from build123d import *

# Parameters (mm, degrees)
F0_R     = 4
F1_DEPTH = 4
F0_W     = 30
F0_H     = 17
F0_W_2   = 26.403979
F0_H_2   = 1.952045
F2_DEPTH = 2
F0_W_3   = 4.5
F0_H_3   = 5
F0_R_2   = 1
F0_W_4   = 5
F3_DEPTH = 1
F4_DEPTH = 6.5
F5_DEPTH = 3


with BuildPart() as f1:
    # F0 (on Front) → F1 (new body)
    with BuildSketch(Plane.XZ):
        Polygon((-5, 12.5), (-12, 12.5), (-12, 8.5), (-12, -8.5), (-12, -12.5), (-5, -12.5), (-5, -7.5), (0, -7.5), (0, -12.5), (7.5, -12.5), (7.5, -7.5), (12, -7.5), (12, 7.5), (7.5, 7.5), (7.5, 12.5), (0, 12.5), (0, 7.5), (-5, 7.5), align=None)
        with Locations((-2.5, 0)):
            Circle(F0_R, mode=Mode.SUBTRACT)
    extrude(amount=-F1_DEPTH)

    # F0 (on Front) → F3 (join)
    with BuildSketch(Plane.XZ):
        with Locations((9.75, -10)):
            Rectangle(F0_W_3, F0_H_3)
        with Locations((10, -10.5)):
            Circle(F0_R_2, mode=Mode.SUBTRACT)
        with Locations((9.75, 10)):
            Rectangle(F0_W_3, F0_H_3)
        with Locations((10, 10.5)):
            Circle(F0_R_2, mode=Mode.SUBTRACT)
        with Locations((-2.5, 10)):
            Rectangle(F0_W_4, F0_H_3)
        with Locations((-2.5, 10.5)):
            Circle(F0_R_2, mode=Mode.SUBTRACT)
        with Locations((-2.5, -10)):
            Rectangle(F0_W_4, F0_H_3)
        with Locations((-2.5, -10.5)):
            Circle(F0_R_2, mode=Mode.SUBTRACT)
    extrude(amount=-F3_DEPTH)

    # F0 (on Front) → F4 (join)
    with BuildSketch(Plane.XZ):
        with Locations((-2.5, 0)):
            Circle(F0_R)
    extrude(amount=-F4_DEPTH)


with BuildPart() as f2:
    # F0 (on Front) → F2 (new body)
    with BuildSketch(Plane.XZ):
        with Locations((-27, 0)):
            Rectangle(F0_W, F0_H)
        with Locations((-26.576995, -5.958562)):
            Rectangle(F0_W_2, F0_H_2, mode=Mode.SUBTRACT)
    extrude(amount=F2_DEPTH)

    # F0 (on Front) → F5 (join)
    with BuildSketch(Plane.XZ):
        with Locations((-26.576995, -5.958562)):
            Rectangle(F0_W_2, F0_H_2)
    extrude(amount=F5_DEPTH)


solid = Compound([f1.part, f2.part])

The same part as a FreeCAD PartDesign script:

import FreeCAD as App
import Part
import Sketcher
from FreeCAD import Vector

doc = App.newDocument("Part")
body = doc.addObject("PartDesign::Body", "Body")

# Sketch on XZ plane
sketch1 = body.newObject("Sketcher::SketchObject", "Sketch")
sketch1.AttachmentSupport = (doc.getObject("XZ_Plane"), [""])
sketch1.MapMode = "FlatFace"
sketch1.addGeometry(Part.LineSegment(Vector(-5, 12.5, 0), Vector(-12, 12.5, 0)), False)
sketch1.addGeometry(Part.LineSegment(Vector(-12, 12.5, 0), Vector(-12, -12.5, 0)), False)
sketch1.addGeometry(Part.LineSegment(Vector(-12, -12.5, 0), Vector(-5, -12.5, 0)), False)
sketch1.addGeometry(Part.LineSegment(Vector(-5, -12.5, 0), Vector(-5, -7.5, 0)), False)
sketch1.addGeometry(Part.LineSegment(Vector(-5, -7.5, 0), Vector(0, -7.5, 0)), False)
sketch1.addGeometry(Part.LineSegment(Vector(0, -7.5, 0), Vector(0, -12.5, 0)), False)
sketch1.addGeometry(Part.LineSegment(Vector(0, -12.5, 0), Vector(7.5, -12.5, 0)), False)
sketch1.addGeometry(Part.LineSegment(Vector(7.5, -12.5, 0), Vector(7.5, -7.5, 0)), False)
sketch1.addGeometry(Part.LineSegment(Vector(7.5, -7.5, 0), Vector(12, -7.5, 0)), False)
sketch1.addGeometry(Part.LineSegment(Vector(12, -7.5, 0), Vector(12, 7.5, 0)), False)
sketch1.addGeometry(Part.LineSegment(Vector(12, 7.5, 0), Vector(7.5, 7.5, 0)), False)
sketch1.addGeometry(Part.LineSegment(Vector(7.5, 7.5, 0), Vector(7.5, 12.5, 0)), False)
sketch1.addGeometry(Part.LineSegment(Vector(7.5, 12.5, 0), Vector(0, 12.5, 0)), False)
sketch1.addGeometry(Part.LineSegment(Vector(0, 12.5, 0), Vector(0, 7.5, 0)), False)
sketch1.addGeometry(Part.LineSegment(Vector(0, 7.5, 0), Vector(-5, 7.5, 0)), False)
sketch1.addGeometry(Part.LineSegment(Vector(-5, 7.5, 0), Vector(-5, 12.5, 0)), False)
sketch1.addGeometry(Part.Circle(Vector(-2.5, 0, 0), Vector(0, 0, 1), 4), False)
sketch1.addConstraint(Sketcher.Constraint("Coincident", 0, 2, 1, 1))
sketch1.addConstraint(Sketcher.Constraint("Coincident", 1, 2, 2, 1))
sketch1.addConstraint(Sketcher.Constraint("Coincident", 2, 2, 3, 1))
sketch1.addConstraint(Sketcher.Constraint("Coincident", 3, 2, 4, 1))
sketch1.addConstraint(Sketcher.Constraint("Coincident", 4, 2, 5, 1))
sketch1.addConstraint(Sketcher.Constraint("Coincident", 5, 2, 6, 1))
sketch1.addConstraint(Sketcher.Constraint("Coincident", 6, 2, 7, 1))
sketch1.addConstraint(Sketcher.Constraint("Coincident", 7, 2, 8, 1))
sketch1.addConstraint(Sketcher.Constraint("Coincident", 8, 2, 9, 1))
sketch1.addConstraint(Sketcher.Constraint("Coincident", 9, 2, 10, 1))
sketch1.addConstraint(Sketcher.Constraint("Coincident", 10, 2, 11, 1))
sketch1.addConstraint(Sketcher.Constraint("Coincident", 11, 2, 12, 1))
sketch1.addConstraint(Sketcher.Constraint("Coincident", 12, 2, 13, 1))
sketch1.addConstraint(Sketcher.Constraint("Coincident", 13, 2, 14, 1))
sketch1.addConstraint(Sketcher.Constraint("Coincident", 14, 2, 15, 1))
sketch1.addConstraint(Sketcher.Constraint("Coincident", 15, 2, 0, 1))
sketch1.addConstraint(Sketcher.Constraint("Horizontal", 0))
sketch1.addConstraint(Sketcher.Constraint("Vertical", 1))
sketch1.addConstraint(Sketcher.Constraint("Horizontal", 2))
sketch1.addConstraint(Sketcher.Constraint("Vertical", 3))
sketch1.addConstraint(Sketcher.Constraint("Horizontal", 4))
sketch1.addConstraint(Sketcher.Constraint("Vertical", 5))
sketch1.addConstraint(Sketcher.Constraint("Horizontal", 6))
sketch1.addConstraint(Sketcher.Constraint("Vertical", 7))
sketch1.addConstraint(Sketcher.Constraint("Horizontal", 8))
sketch1.addConstraint(Sketcher.Constraint("Vertical", 9))
sketch1.addConstraint(Sketcher.Constraint("Horizontal", 10))
sketch1.addConstraint(Sketcher.Constraint("Vertical", 11))
sketch1.addConstraint(Sketcher.Constraint("Horizontal", 12))
sketch1.addConstraint(Sketcher.Constraint("Vertical", 13))
sketch1.addConstraint(Sketcher.Constraint("Horizontal", 14))
sketch1.addConstraint(Sketcher.Constraint("Vertical", 15))
sketch1.addConstraint(Sketcher.Constraint("Symmetric", 5, 2, 12, 2, -1, 1))
sketch1.addConstraint(Sketcher.Constraint("Symmetric", 7, 2, 10, 2, -1))
sketch1.addConstraint(Sketcher.Constraint("Symmetric", 4, 2, 13, 2, -1))
sketch1.addConstraint(Sketcher.Constraint("Symmetric", 2, 2, 15, 2, -1))
sketch1.addConstraint(Sketcher.Constraint("PointOnObject", 16, 3, -1))
sketch1.addConstraint(Sketcher.Constraint("Horizontal", 2, 2, 5, 2))
sketch1.addConstraint(Sketcher.Constraint("Horizontal", 4, 2, 7, 2))
sketch1.addConstraint(Sketcher.Constraint("Equal", 14, 3))
sketch1.addConstraint(Sketcher.Constraint("Diameter", 16, 8.0))
sketch1.addConstraint(Sketcher.Constraint("DistanceX", 0, 2, 0, 1, 7.0))
sketch1.addConstraint(Sketcher.Constraint("DistanceX", 4, 1, 4, 2, 5.0))
sketch1.addConstraint(Sketcher.Constraint("DistanceY", 1, 2, 1, 1, 25.0))
sketch1.addConstraint(Sketcher.Constraint("DistanceX", 6, 1, 6, 2, 7.5))
sketch1.addConstraint(Sketcher.Constraint("DistanceX", 8, 1, 8, 2, 4.5))
sketch1.addConstraint(Sketcher.Constraint("DistanceX", 16, 3, 6, 2, 10.0))
pad1 = body.newObject("PartDesign::Pad", "Pad")
pad1.Profile = sketch1
pad1.Length = 4
pad1.Reversed = True

# Sketch on XZ plane
sketch2 = body.newObject("Sketcher::SketchObject", "Sketch001")
sketch2.AttachmentSupport = (doc.getObject("XZ_Plane"), [""])
sketch2.MapMode = "FlatFace"
sketch2.addGeometry(Part.LineSegment(Vector(7.5, -7.5, 0), Vector(7.5, -12.5, 0)), False)
sketch2.addGeometry(Part.LineSegment(Vector(7.5, -12.5, 0), Vector(12, -12.5, 0)), False)
sketch2.addGeometry(Part.LineSegment(Vector(12, -12.5, 0), Vector(12, -7.5, 0)), False)
sketch2.addGeometry(Part.LineSegment(Vector(12, -7.5, 0), Vector(7.5, -7.5, 0)), False)
sketch2.addGeometry(Part.Circle(Vector(10, -10.5, 0), Vector(0, 0, 1), 1), False)
sketch2.addGeometry(Part.LineSegment(Vector(7.5, 12.5, 0), Vector(7.5, 7.5, 0)), False)
sketch2.addGeometry(Part.LineSegment(Vector(7.5, 7.5, 0), Vector(12, 7.5, 0)), False)
sketch2.addGeometry(Part.LineSegment(Vector(12, 7.5, 0), Vector(12, 12.5, 0)), False)
sketch2.addGeometry(Part.LineSegment(Vector(12, 12.5, 0), Vector(7.5, 12.5, 0)), False)
sketch2.addGeometry(Part.Circle(Vector(10, 10.5, 0), Vector(0, 0, 1), 1), False)
sketch2.addGeometry(Part.LineSegment(Vector(-5, 12.5, 0), Vector(-5, 7.5, 0)), False)
sketch2.addGeometry(Part.LineSegment(Vector(-5, 7.5, 0), Vector(0, 7.5, 0)), False)
sketch2.addGeometry(Part.LineSegment(Vector(0, 7.5, 0), Vector(0, 12.5, 0)), False)
sketch2.addGeometry(Part.LineSegment(Vector(0, 12.5, 0), Vector(-5, 12.5, 0)), False)
sketch2.addGeometry(Part.Circle(Vector(-2.5, 10.5, 0), Vector(0, 0, 1), 1), False)
sketch2.addGeometry(Part.LineSegment(Vector(-5, -7.5, 0), Vector(-5, -12.5, 0)), False)
sketch2.addGeometry(Part.LineSegment(Vector(-5, -12.5, 0), Vector(0, -12.5, 0)), False)
sketch2.addGeometry(Part.LineSegment(Vector(0, -12.5, 0), Vector(0, -7.5, 0)), False)
sketch2.addGeometry(Part.LineSegment(Vector(0, -7.5, 0), Vector(-5, -7.5, 0)), False)
sketch2.addGeometry(Part.Circle(Vector(-2.5, -10.5, 0), Vector(0, 0, 1), 1), False)
sketch2.addConstraint(Sketcher.Constraint("Coincident", 0, 2, 1, 1))
sketch2.addConstraint(Sketcher.Constraint("Coincident", 1, 2, 2, 1))
sketch2.addConstraint(Sketcher.Constraint("Coincident", 2, 2, 3, 1))
sketch2.addConstraint(Sketcher.Constraint("Coincident", 3, 2, 0, 1))
sketch2.addConstraint(Sketcher.Constraint("Coincident", 5, 2, 6, 1))
sketch2.addConstraint(Sketcher.Constraint("Coincident", 6, 2, 7, 1))
sketch2.addConstraint(Sketcher.Constraint("Coincident", 7, 2, 8, 1))
sketch2.addConstraint(Sketcher.Constraint("Coincident", 8, 2, 5, 1))
sketch2.addConstraint(Sketcher.Constraint("Coincident", 10, 2, 11, 1))
sketch2.addConstraint(Sketcher.Constraint("Coincident", 11, 2, 12, 1))
sketch2.addConstraint(Sketcher.Constraint("Coincident", 12, 2, 13, 1))
sketch2.addConstraint(Sketcher.Constraint("Coincident", 13, 2, 10, 1))
sketch2.addConstraint(Sketcher.Constraint("Coincident", 15, 2, 16, 1))
sketch2.addConstraint(Sketcher.Constraint("Coincident", 16, 2, 17, 1))
sketch2.addConstraint(Sketcher.Constraint("Coincident", 17, 2, 18, 1))
sketch2.addConstraint(Sketcher.Constraint("Coincident", 18, 2, 15, 1))
sketch2.addConstraint(Sketcher.Constraint("Vertical", 0))
sketch2.addConstraint(Sketcher.Constraint("Horizontal", 1))
sketch2.addConstraint(Sketcher.Constraint("Vertical", 2))
sketch2.addConstraint(Sketcher.Constraint("Horizontal", 3))
sketch2.addConstraint(Sketcher.Constraint("Vertical", 5))
sketch2.addConstraint(Sketcher.Constraint("Horizontal", 6))
sketch2.addConstraint(Sketcher.Constraint("Vertical", 7))
sketch2.addConstraint(Sketcher.Constraint("Horizontal", 8))
sketch2.addConstraint(Sketcher.Constraint("Vertical", 10))
sketch2.addConstraint(Sketcher.Constraint("Horizontal", 11))
sketch2.addConstraint(Sketcher.Constraint("Vertical", 12))
sketch2.addConstraint(Sketcher.Constraint("Horizontal", 13))
sketch2.addConstraint(Sketcher.Constraint("Vertical", 15))
sketch2.addConstraint(Sketcher.Constraint("Horizontal", 16))
sketch2.addConstraint(Sketcher.Constraint("Vertical", 17))
sketch2.addConstraint(Sketcher.Constraint("Horizontal", 18))
sketch2.addConstraint(Sketcher.Constraint("Equal", 4, 9))
sketch2.addConstraint(Sketcher.Constraint("Equal", 9, 14))
sketch2.addConstraint(Sketcher.Constraint("Equal", 14, 19))
sketch2.addConstraint(Sketcher.Constraint("Symmetric", 12, 2, 16, 2, -1, 1))
sketch2.addConstraint(Sketcher.Constraint("Symmetric", 4, 3, 9, 3, -1))
sketch2.addConstraint(Sketcher.Constraint("Symmetric", 14, 3, 19, 3, -1))
sketch2.addConstraint(Sketcher.Constraint("Symmetric", 3, 2, 5, 2, -1))
sketch2.addConstraint(Sketcher.Constraint("Symmetric", 1, 2, 7, 2, -1))
sketch2.addConstraint(Sketcher.Constraint("Symmetric", 11, 2, 17, 2, -1))
sketch2.addConstraint(Sketcher.Constraint("Horizontal", 9, 3, 14, 3))
sketch2.addConstraint(Sketcher.Constraint("Horizontal", 6, 2, 10, 2))
sketch2.addConstraint(Sketcher.Constraint("Horizontal", 8, 2, 12, 2))
sketch2.addConstraint(Sketcher.Constraint("Vertical", 13, 2, 15, 2))
sketch2.addConstraint(Sketcher.Constraint("Equal", 18, 0))
sketch2.addConstraint(Sketcher.Constraint("Diameter", 4, 2.0))
sketch2.addConstraint(Sketcher.Constraint("DistanceX", 11, 1, 11, 2, 5.0))
sketch2.addConstraint(Sketcher.Constraint("DistanceX", 1, 1, 1, 2, 4.5))
sketch2.addConstraint(Sketcher.Constraint("DistanceX", -1, 1, 4, 3, 10.0))
sketch2.addConstraint(Sketcher.Constraint("DistanceX", -1, 1, 1, 2, 12.0))
sketch2.addConstraint(Sketcher.Constraint("DistanceY", 4, 3, 9, 3, 21.0))
sketch2.addConstraint(Sketcher.Constraint("DistanceY", 0, 2, 4, 3, 2.0))
sketch2.addConstraint(Sketcher.Constraint("DistanceX", 19, 3, 0, 2, 10.0))
pad2 = body.newObject("PartDesign::Pad", "Pad001")
pad2.Profile = sketch2
pad2.Length = 1
pad2.Reversed = True

# Sketch on XZ plane
sketch3 = body.newObject("Sketcher::SketchObject", "Sketch002")
sketch3.AttachmentSupport = (doc.getObject("XZ_Plane"), [""])
sketch3.MapMode = "FlatFace"
sketch3.addGeometry(Part.Circle(Vector(-2.5, 0, 0), Vector(0, 0, 1), 4), False)
sketch3.addConstraint(Sketcher.Constraint("PointOnObject", 0, 3, -1))
sketch3.addConstraint(Sketcher.Constraint("Diameter", 0, 8.0))
sketch3.addConstraint(Sketcher.Constraint("DistanceX", 0, 3, -1, 1, 2.5))
pad3 = body.newObject("PartDesign::Pad", "Pad002")
pad3.Profile = sketch3
pad3.Length = 6.5
pad3.Reversed = True
body2 = doc.addObject("PartDesign::Body", "Body001")

# Sketch on XZ plane
sketch4 = body2.newObject("Sketcher::SketchObject", "Sketch003")
sketch4.AttachmentSupport = (doc.getObject("XZ_Plane001"), [""])
sketch4.MapMode = "FlatFace"
sketch4.addGeometry(Part.LineSegment(Vector(-42, 8.5, 0), Vector(-42, -8.5, 0)), False)
sketch4.addGeometry(Part.LineSegment(Vector(-42, -8.5, 0), Vector(-12, -8.5, 0)), False)
sketch4.addGeometry(Part.LineSegment(Vector(-12, -8.5, 0), Vector(-12, 8.5, 0)), False)
sketch4.addGeometry(Part.LineSegment(Vector(-12, 8.5, 0), Vector(-42, 8.5, 0)), False)
sketch4.addGeometry(Part.LineSegment(Vector(-13.4, -6.9, 0), Vector(-39.8, -6.9, 0)), False)
sketch4.addGeometry(Part.LineSegment(Vector(-39.8, -6.9, 0), Vector(-39.8, -5, 0)), False)
sketch4.addGeometry(Part.LineSegment(Vector(-39.8, -5, 0), Vector(-13.4, -5, 0)), False)
sketch4.addGeometry(Part.LineSegment(Vector(-13.4, -5, 0), Vector(-13.4, -6.9, 0)), False)
sketch4.addConstraint(Sketcher.Constraint("Coincident", 0, 2, 1, 1))
sketch4.addConstraint(Sketcher.Constraint("Coincident", 1, 2, 2, 1))
sketch4.addConstraint(Sketcher.Constraint("Coincident", 2, 2, 3, 1))
sketch4.addConstraint(Sketcher.Constraint("Coincident", 3, 2, 0, 1))
sketch4.addConstraint(Sketcher.Constraint("Coincident", 4, 2, 5, 1))
sketch4.addConstraint(Sketcher.Constraint("Coincident", 5, 2, 6, 1))
sketch4.addConstraint(Sketcher.Constraint("Coincident", 6, 2, 7, 1))
sketch4.addConstraint(Sketcher.Constraint("Coincident", 7, 2, 4, 1))
sketch4.addConstraint(Sketcher.Constraint("Vertical", 0))
sketch4.addConstraint(Sketcher.Constraint("Horizontal", 1))
sketch4.addConstraint(Sketcher.Constraint("Vertical", 2))
sketch4.addConstraint(Sketcher.Constraint("Horizontal", 3))
sketch4.addConstraint(Sketcher.Constraint("Horizontal", 4))
sketch4.addConstraint(Sketcher.Constraint("Vertical", 5))
sketch4.addConstraint(Sketcher.Constraint("Horizontal", 6))
sketch4.addConstraint(Sketcher.Constraint("Vertical", 7))
sketch4.addConstraint(Sketcher.Constraint("DistanceX", 1, 1, 1, 2, 30.0))
sketch4.addConstraint(Sketcher.Constraint("DistanceY", 0, 2, 0, 1, 17.0))
sketch4.addConstraint(Sketcher.Constraint("DistanceX", 0, 2, -1, 1, 42.0))
sketch4.addConstraint(Sketcher.Constraint("DistanceY", 0, 2, -1, 1, 8.5))
sketch4.addConstraint(Sketcher.Constraint("DistanceX", 4, 2, 4, 1, 26.403979))
sketch4.addConstraint(Sketcher.Constraint("DistanceY", 5, 1, 5, 2, 1.952045))
sketch4.addConstraint(Sketcher.Constraint("DistanceY", 5, 2, -1, 1, 4.982539))
sketch4.addConstraint(Sketcher.Constraint("DistanceX", 4, 2, -1, 1, 39.778984))
pad4 = body2.newObject("PartDesign::Pad", "Pad003")
pad4.Profile = sketch4
pad4.Length = 2

# Sketch on XZ plane
sketch5 = body2.newObject("Sketcher::SketchObject", "Sketch004")
sketch5.AttachmentSupport = (doc.getObject("XZ_Plane001"), [""])
sketch5.MapMode = "FlatFace"
sketch5.addGeometry(Part.LineSegment(Vector(-39.8, -5, 0), Vector(-39.8, -6.9, 0)), False)
sketch5.addGeometry(Part.LineSegment(Vector(-39.8, -6.9, 0), Vector(-13.4, -6.9, 0)), False)
sketch5.addGeometry(Part.LineSegment(Vector(-13.4, -6.9, 0), Vector(-13.4, -5, 0)), False)
sketch5.addGeometry(Part.LineSegment(Vector(-13.4, -5, 0), Vector(-39.8, -5, 0)), False)
sketch5.addConstraint(Sketcher.Constraint("Coincident", 0, 2, 1, 1))
sketch5.addConstraint(Sketcher.Constraint("Coincident", 1, 2, 2, 1))
sketch5.addConstraint(Sketcher.Constraint("Coincident", 2, 2, 3, 1))
sketch5.addConstraint(Sketcher.Constraint("Coincident", 3, 2, 0, 1))
sketch5.addConstraint(Sketcher.Constraint("Vertical", 0))
sketch5.addConstraint(Sketcher.Constraint("Horizontal", 1))
sketch5.addConstraint(Sketcher.Constraint("Vertical", 2))
sketch5.addConstraint(Sketcher.Constraint("Horizontal", 3))
sketch5.addConstraint(Sketcher.Constraint("DistanceX", 1, 1, 1, 2, 26.403979))
sketch5.addConstraint(Sketcher.Constraint("DistanceY", 0, 2, 0, 1, 1.952045))
sketch5.addConstraint(Sketcher.Constraint("DistanceY", 2, 2, -1, 1, 4.982539))
sketch5.addConstraint(Sketcher.Constraint("DistanceX", 0, 2, -1, 1, 39.778984))
pad5 = body2.newObject("PartDesign::Pad", "Pad004")
pad5.Profile = sketch5
pad5.Length = 3

doc.recompute()
